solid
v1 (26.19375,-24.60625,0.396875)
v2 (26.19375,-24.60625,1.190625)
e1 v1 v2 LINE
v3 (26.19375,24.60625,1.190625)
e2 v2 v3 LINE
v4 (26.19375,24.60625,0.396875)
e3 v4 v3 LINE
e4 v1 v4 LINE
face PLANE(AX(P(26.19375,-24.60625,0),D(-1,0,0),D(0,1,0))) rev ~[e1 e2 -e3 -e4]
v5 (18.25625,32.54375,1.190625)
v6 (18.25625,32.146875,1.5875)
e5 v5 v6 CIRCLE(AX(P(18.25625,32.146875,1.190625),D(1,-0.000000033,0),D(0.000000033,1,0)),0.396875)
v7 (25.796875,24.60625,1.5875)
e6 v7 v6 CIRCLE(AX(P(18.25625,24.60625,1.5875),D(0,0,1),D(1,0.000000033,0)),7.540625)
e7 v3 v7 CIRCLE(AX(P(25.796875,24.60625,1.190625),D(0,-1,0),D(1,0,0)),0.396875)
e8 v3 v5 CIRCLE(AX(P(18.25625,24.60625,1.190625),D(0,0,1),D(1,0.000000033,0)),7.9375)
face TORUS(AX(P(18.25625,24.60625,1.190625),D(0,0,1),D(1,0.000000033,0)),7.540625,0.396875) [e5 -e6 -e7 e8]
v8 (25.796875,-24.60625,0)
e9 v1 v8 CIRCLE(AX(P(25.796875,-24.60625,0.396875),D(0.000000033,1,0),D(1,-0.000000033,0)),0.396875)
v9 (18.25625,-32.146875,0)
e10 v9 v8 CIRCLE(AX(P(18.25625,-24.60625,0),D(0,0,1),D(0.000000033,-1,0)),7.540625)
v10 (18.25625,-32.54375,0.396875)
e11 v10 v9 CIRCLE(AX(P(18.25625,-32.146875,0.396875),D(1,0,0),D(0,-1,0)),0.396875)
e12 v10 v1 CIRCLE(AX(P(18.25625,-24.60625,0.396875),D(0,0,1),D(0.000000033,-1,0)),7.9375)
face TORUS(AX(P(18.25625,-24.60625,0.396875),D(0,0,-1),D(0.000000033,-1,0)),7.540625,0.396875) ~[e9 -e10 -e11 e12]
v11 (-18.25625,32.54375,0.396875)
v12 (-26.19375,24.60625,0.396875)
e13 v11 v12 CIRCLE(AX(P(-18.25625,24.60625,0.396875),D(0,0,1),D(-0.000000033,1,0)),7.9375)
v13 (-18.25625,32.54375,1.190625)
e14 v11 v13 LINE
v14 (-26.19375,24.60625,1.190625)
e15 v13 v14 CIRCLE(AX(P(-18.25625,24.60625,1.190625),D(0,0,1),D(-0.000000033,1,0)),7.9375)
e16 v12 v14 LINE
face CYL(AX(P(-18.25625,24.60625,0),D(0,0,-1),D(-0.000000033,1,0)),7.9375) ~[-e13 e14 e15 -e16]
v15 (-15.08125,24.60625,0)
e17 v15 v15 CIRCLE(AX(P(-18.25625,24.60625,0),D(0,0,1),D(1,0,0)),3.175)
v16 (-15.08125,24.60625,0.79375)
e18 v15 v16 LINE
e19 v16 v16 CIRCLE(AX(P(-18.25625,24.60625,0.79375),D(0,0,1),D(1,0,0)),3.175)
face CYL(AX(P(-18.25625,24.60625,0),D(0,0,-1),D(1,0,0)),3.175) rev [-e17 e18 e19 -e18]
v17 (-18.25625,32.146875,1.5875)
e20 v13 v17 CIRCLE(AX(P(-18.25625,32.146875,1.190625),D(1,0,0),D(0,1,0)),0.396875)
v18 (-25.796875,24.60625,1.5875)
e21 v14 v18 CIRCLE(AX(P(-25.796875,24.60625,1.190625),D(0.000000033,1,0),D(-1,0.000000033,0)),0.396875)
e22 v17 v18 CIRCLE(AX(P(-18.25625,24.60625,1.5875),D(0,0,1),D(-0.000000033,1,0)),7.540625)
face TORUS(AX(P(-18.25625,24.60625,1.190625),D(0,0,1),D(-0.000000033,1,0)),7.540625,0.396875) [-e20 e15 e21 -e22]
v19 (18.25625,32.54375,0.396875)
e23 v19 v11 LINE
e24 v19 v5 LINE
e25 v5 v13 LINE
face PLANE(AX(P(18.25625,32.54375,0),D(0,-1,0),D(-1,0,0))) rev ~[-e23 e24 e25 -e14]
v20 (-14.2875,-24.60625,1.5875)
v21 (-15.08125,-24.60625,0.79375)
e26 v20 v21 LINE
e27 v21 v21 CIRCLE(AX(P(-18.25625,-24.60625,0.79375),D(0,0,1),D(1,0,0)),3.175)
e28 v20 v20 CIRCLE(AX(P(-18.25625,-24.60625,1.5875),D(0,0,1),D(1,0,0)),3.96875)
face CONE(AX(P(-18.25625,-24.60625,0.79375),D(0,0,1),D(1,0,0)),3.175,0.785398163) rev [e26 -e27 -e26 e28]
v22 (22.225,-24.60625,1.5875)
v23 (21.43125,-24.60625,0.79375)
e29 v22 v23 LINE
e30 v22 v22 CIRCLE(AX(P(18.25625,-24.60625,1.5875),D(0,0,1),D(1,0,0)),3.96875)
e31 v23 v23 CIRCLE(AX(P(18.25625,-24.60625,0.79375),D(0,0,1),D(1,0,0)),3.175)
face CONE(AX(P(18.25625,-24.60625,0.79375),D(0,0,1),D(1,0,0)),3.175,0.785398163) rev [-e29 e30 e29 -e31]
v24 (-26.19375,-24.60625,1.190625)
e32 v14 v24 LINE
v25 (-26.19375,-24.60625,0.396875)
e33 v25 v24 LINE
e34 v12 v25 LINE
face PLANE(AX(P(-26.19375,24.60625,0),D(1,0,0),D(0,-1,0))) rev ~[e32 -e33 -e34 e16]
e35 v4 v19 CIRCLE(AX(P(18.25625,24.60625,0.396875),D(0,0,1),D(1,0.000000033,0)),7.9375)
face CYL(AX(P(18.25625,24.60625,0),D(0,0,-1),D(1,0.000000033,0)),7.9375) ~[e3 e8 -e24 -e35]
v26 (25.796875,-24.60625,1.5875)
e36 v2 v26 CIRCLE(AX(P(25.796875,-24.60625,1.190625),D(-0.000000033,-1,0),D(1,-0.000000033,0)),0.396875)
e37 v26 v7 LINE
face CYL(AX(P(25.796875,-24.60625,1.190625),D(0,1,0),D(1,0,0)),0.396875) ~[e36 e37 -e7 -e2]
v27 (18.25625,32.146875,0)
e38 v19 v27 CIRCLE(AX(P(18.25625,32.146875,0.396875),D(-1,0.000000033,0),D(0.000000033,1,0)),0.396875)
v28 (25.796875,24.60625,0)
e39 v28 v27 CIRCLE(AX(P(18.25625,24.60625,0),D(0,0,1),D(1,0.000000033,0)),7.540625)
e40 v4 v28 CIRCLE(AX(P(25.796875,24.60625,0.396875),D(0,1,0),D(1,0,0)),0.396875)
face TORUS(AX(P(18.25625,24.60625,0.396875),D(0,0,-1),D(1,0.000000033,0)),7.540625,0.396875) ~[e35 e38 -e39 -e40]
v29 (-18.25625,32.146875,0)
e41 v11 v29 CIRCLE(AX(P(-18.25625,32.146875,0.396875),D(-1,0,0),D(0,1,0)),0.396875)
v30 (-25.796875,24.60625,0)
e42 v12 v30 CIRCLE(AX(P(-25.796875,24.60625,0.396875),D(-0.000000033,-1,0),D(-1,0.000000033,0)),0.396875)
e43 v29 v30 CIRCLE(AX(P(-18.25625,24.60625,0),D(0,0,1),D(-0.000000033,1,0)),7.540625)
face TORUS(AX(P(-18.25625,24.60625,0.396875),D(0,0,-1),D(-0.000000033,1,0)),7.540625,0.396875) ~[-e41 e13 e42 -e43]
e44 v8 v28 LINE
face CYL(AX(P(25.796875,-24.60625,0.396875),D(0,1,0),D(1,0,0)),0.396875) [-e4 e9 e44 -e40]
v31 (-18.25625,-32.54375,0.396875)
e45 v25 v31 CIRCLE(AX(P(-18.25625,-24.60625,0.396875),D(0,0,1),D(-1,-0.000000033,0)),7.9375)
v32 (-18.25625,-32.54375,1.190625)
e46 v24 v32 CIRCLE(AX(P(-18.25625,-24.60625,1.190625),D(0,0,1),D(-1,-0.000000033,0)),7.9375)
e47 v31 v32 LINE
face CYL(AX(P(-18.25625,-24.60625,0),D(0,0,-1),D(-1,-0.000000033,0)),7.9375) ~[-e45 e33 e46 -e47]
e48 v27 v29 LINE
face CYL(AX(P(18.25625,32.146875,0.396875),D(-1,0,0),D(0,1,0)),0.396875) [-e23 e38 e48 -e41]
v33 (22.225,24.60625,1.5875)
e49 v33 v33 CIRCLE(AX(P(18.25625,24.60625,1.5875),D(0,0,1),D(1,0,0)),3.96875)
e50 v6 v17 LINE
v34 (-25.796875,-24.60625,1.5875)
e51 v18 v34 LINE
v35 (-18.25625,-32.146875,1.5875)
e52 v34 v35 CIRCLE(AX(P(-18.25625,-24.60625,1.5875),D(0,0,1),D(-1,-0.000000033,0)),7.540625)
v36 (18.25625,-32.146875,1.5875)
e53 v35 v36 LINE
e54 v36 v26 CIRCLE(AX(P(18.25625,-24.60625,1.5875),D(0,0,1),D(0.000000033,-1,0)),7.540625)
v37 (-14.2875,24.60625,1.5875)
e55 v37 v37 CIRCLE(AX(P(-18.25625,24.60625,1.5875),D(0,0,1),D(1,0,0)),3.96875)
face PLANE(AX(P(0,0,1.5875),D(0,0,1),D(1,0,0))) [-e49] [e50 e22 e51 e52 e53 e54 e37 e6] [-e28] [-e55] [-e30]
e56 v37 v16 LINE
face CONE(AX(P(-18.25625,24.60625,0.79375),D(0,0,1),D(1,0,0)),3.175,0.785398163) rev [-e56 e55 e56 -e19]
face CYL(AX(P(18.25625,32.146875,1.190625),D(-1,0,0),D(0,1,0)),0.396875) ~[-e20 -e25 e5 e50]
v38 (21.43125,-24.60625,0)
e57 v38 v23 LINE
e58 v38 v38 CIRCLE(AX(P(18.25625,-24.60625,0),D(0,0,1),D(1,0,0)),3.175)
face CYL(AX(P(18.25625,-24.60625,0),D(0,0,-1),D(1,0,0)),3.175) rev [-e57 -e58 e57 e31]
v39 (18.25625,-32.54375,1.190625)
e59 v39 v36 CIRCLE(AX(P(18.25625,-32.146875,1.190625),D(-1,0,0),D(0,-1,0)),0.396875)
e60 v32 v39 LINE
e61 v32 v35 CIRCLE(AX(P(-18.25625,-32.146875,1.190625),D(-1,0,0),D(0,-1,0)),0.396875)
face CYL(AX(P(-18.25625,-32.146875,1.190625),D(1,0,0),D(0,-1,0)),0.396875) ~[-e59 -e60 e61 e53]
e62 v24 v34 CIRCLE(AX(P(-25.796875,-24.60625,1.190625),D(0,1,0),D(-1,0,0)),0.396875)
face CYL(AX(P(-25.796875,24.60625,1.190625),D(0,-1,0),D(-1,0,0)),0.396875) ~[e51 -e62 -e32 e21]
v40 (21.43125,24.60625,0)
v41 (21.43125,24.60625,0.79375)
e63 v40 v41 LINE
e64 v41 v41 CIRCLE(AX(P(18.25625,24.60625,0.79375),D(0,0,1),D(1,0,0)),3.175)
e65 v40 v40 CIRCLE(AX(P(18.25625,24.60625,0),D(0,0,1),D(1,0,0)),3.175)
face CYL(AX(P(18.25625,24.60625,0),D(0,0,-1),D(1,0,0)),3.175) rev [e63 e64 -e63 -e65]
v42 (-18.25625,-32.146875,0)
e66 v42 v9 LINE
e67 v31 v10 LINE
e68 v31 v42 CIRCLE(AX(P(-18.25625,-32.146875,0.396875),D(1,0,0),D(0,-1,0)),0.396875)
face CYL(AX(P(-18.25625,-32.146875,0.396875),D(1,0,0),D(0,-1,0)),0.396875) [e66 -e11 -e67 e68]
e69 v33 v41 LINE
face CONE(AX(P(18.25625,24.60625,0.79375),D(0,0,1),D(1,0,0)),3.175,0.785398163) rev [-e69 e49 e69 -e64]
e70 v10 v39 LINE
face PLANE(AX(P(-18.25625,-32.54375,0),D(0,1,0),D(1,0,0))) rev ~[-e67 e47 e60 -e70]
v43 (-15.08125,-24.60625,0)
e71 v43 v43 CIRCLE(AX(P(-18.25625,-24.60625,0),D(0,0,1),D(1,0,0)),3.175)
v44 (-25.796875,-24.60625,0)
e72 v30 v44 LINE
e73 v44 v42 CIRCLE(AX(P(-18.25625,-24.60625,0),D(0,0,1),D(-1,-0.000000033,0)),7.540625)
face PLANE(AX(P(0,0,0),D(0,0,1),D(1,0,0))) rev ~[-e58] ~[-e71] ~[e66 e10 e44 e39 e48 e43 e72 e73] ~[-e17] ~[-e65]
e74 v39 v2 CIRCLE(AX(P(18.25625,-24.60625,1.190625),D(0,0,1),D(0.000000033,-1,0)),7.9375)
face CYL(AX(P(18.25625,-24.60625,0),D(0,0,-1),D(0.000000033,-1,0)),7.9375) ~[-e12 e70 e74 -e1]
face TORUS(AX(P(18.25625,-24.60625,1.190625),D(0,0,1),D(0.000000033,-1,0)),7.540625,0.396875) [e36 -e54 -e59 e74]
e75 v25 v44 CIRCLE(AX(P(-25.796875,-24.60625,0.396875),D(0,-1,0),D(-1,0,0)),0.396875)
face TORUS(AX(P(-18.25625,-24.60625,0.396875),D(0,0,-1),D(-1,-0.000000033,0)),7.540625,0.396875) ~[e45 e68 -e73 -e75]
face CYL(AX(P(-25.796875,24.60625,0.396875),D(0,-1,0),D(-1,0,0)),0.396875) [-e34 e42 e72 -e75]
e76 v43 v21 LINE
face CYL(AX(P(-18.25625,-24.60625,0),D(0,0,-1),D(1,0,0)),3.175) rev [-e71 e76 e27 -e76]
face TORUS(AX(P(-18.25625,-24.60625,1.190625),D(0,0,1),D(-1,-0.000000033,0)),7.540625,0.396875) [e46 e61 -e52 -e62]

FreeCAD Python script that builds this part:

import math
import FreeCAD as App
import Part
import Sketcher
from FreeCAD import Vector
Q = App.Units.Quantity


def edges_at(feature, points):
    """Names of the edges that pass closest to the given points."""
    edges = feature.Shape.Edges
    near = lambda p: min(range(len(edges)), key=lambda i: edges[i].distToShape(Part.Vertex(*p))[0])
    return sorted({f"Edge{near(p) + 1}" for p in points})

doc = App.newDocument("Part")
body = doc.addObject("PartDesign::Body", "Body")

sketch1 = body.newObject("Sketcher::SketchObject", "Sketch")
sketch1.AttachmentSupport = (doc.getObject("XY_Plane"), [""])
sketch1.MapMode = "FlatFace"
sketch1.addGeometry([
    Part.LineSegment(Vector(18.3, 32.5, 0), Vector(-18.3, 32.5, 0)),
    Part.ArcOfCircle(Part.Circle(Vector(-18.3, 24.6, 0), Vector(0, 0, 1), 7.9), math.radians(90), math.radians(180)),
    Part.LineSegment(Vector(-26.2, 24.6, 0), Vector(-26.2, -24.6, 0)),
    Part.ArcOfCircle(Part.Circle(Vector(-18.3, -24.6, 0), Vector(0, 0, 1), 7.9), math.radians(-180), math.radians(-90)),
    Part.LineSegment(Vector(-18.3, -32.5, 0), Vector(18.3, -32.5, 0)),
    Part.ArcOfCircle(Part.Circle(Vector(18.3, -24.6, 0), Vector(0, 0, 1), 7.9), math.radians(-90), math.radians(0)),
    Part.LineSegment(Vector(26.2, -24.6, 0), Vector(26.2, 24.6, 0)),
    Part.ArcOfCircle(Part.Circle(Vector(18.3, 24.6, 0), Vector(0, 0, 1), 7.9), math.radians(0), math.radians(90)),
    Part.Circle(Vector(-18.3, -24.6, 0), Vector(0, 0, 1), 3.2),
    Part.Circle(Vector(18.3, -24.6, 0), Vector(0, 0, 1), 3.2),
    Part.Circle(Vector(-18.3, 24.6, 0), Vector(0, 0, 1), 3.2),
    Part.Circle(Vector(18.3, 24.6, 0), Vector(0, 0, 1), 3.2),
], False)
sketch1.addConstraint([
    Sketcher.Constraint("Tangent", 0, 2, 1, 1),
    Sketcher.Constraint("Tangent", 1, 2, 2, 1),
    Sketcher.Constraint("Tangent", 2, 2, 3, 1),
    Sketcher.Constraint("Tangent", 3, 2, 4, 1),
    Sketcher.Constraint("Tangent", 4, 2, 5, 1),
    Sketcher.Constraint("Tangent", 5, 2, 6, 1),
    Sketcher.Constraint("Tangent", 6, 2, 7, 1),
    Sketcher.Constraint("Tangent", 7, 2, 0, 1),
    Sketcher.Constraint("Horizontal", 0),
    Sketcher.Constraint("Vertical", 2),
    Sketcher.Constraint("Horizontal", 4),
    Sketcher.Constraint("Vertical", 6),
    Sketcher.Constraint("Coincident", 8, 3, 3, 3),
    Sketcher.Constraint("Coincident", 9, 3, 5, 3),
    Sketcher.Constraint("Coincident", 10, 3, 1, 3),
    Sketcher.Constraint("Coincident", 11, 3, 7, 3),
    Sketcher.Constraint("Equal", 1, 3),
    Sketcher.Constraint("Equal", 3, 5),
    Sketcher.Constraint("Equal", 5, 7),
    Sketcher.Constraint("Equal", 8, 9),
    Sketcher.Constraint("Equal", 9, 10),
    Sketcher.Constraint("Equal", 10, 11),
    Sketcher.Constraint("Symmetric", 1, 3, 5, 3, -1, 1),
    Sketcher.Constraint("Diameter", 8, Q("0.25 in")),
    Sketcher.Constraint("Radius", 1, Q("0.3125 in")),
    Sketcher.Constraint("DistanceX", 0, 2, 0, 1, Q("1.4375 in")),
    Sketcher.Constraint("DistanceY", 2, 2, 2, 1, Q("1.9375 in")),
])
pad1 = body.newObject("PartDesign::Pad", "Pad")
pad1.Profile = sketch1
pad1.Length = Q("0.0625 in")
doc.recompute()

fillet = body.newObject("PartDesign::Fillet", "Fillet")
fillet.Base = (pad1, edges_at(pad1, [
    (-18.256, -32.544, 0.794),
    (18.256, -32.544, 0.794),
    (0, -32.544, 0),
    (0, -32.544, 1.587),
    (26.194, -24.606, 0.794),
    (23.869, -30.219, 0),
    (23.869, -30.219, 1.587),
    (26.194, 24.606, 0.794),
    (26.194, 0, 0),
    (26.194, 0, 1.587),
    (-26.194, -24.606, 0.794),
    (-23.869, -30.219, 0),
    (-23.869, -30.219, 1.587),
    (-26.194, 24.606, 0.794),
    (-26.194, 0, 0),
    (-26.194, 0, 1.587),
    (-18.256, 32.544, 0.794),
    (-23.869, 30.219, 0),
    (-23.869, 30.219, 1.587),
    (18.256, 32.544, 0.794),
    (0, 32.544, 0),
    (0, 32.544, 1.587),
    (23.869, 30.219, 0),
    (23.869, 30.219, 1.587),
]))
fillet.Radius = Q("0.015625 in")
doc.recompute()

chamfer = body.newObject("PartDesign::Chamfer", "Chamfer")
chamfer.Base = (fillet, edges_at(fillet, [
    (15.081, -24.606, 1.587),
    (-21.431, -24.606, 1.587),
    (-21.431, 24.606, 1.587),
    (15.081, 24.606, 1.587),
]))
chamfer.Size = Q("0.03125 in")

doc.recompute()
